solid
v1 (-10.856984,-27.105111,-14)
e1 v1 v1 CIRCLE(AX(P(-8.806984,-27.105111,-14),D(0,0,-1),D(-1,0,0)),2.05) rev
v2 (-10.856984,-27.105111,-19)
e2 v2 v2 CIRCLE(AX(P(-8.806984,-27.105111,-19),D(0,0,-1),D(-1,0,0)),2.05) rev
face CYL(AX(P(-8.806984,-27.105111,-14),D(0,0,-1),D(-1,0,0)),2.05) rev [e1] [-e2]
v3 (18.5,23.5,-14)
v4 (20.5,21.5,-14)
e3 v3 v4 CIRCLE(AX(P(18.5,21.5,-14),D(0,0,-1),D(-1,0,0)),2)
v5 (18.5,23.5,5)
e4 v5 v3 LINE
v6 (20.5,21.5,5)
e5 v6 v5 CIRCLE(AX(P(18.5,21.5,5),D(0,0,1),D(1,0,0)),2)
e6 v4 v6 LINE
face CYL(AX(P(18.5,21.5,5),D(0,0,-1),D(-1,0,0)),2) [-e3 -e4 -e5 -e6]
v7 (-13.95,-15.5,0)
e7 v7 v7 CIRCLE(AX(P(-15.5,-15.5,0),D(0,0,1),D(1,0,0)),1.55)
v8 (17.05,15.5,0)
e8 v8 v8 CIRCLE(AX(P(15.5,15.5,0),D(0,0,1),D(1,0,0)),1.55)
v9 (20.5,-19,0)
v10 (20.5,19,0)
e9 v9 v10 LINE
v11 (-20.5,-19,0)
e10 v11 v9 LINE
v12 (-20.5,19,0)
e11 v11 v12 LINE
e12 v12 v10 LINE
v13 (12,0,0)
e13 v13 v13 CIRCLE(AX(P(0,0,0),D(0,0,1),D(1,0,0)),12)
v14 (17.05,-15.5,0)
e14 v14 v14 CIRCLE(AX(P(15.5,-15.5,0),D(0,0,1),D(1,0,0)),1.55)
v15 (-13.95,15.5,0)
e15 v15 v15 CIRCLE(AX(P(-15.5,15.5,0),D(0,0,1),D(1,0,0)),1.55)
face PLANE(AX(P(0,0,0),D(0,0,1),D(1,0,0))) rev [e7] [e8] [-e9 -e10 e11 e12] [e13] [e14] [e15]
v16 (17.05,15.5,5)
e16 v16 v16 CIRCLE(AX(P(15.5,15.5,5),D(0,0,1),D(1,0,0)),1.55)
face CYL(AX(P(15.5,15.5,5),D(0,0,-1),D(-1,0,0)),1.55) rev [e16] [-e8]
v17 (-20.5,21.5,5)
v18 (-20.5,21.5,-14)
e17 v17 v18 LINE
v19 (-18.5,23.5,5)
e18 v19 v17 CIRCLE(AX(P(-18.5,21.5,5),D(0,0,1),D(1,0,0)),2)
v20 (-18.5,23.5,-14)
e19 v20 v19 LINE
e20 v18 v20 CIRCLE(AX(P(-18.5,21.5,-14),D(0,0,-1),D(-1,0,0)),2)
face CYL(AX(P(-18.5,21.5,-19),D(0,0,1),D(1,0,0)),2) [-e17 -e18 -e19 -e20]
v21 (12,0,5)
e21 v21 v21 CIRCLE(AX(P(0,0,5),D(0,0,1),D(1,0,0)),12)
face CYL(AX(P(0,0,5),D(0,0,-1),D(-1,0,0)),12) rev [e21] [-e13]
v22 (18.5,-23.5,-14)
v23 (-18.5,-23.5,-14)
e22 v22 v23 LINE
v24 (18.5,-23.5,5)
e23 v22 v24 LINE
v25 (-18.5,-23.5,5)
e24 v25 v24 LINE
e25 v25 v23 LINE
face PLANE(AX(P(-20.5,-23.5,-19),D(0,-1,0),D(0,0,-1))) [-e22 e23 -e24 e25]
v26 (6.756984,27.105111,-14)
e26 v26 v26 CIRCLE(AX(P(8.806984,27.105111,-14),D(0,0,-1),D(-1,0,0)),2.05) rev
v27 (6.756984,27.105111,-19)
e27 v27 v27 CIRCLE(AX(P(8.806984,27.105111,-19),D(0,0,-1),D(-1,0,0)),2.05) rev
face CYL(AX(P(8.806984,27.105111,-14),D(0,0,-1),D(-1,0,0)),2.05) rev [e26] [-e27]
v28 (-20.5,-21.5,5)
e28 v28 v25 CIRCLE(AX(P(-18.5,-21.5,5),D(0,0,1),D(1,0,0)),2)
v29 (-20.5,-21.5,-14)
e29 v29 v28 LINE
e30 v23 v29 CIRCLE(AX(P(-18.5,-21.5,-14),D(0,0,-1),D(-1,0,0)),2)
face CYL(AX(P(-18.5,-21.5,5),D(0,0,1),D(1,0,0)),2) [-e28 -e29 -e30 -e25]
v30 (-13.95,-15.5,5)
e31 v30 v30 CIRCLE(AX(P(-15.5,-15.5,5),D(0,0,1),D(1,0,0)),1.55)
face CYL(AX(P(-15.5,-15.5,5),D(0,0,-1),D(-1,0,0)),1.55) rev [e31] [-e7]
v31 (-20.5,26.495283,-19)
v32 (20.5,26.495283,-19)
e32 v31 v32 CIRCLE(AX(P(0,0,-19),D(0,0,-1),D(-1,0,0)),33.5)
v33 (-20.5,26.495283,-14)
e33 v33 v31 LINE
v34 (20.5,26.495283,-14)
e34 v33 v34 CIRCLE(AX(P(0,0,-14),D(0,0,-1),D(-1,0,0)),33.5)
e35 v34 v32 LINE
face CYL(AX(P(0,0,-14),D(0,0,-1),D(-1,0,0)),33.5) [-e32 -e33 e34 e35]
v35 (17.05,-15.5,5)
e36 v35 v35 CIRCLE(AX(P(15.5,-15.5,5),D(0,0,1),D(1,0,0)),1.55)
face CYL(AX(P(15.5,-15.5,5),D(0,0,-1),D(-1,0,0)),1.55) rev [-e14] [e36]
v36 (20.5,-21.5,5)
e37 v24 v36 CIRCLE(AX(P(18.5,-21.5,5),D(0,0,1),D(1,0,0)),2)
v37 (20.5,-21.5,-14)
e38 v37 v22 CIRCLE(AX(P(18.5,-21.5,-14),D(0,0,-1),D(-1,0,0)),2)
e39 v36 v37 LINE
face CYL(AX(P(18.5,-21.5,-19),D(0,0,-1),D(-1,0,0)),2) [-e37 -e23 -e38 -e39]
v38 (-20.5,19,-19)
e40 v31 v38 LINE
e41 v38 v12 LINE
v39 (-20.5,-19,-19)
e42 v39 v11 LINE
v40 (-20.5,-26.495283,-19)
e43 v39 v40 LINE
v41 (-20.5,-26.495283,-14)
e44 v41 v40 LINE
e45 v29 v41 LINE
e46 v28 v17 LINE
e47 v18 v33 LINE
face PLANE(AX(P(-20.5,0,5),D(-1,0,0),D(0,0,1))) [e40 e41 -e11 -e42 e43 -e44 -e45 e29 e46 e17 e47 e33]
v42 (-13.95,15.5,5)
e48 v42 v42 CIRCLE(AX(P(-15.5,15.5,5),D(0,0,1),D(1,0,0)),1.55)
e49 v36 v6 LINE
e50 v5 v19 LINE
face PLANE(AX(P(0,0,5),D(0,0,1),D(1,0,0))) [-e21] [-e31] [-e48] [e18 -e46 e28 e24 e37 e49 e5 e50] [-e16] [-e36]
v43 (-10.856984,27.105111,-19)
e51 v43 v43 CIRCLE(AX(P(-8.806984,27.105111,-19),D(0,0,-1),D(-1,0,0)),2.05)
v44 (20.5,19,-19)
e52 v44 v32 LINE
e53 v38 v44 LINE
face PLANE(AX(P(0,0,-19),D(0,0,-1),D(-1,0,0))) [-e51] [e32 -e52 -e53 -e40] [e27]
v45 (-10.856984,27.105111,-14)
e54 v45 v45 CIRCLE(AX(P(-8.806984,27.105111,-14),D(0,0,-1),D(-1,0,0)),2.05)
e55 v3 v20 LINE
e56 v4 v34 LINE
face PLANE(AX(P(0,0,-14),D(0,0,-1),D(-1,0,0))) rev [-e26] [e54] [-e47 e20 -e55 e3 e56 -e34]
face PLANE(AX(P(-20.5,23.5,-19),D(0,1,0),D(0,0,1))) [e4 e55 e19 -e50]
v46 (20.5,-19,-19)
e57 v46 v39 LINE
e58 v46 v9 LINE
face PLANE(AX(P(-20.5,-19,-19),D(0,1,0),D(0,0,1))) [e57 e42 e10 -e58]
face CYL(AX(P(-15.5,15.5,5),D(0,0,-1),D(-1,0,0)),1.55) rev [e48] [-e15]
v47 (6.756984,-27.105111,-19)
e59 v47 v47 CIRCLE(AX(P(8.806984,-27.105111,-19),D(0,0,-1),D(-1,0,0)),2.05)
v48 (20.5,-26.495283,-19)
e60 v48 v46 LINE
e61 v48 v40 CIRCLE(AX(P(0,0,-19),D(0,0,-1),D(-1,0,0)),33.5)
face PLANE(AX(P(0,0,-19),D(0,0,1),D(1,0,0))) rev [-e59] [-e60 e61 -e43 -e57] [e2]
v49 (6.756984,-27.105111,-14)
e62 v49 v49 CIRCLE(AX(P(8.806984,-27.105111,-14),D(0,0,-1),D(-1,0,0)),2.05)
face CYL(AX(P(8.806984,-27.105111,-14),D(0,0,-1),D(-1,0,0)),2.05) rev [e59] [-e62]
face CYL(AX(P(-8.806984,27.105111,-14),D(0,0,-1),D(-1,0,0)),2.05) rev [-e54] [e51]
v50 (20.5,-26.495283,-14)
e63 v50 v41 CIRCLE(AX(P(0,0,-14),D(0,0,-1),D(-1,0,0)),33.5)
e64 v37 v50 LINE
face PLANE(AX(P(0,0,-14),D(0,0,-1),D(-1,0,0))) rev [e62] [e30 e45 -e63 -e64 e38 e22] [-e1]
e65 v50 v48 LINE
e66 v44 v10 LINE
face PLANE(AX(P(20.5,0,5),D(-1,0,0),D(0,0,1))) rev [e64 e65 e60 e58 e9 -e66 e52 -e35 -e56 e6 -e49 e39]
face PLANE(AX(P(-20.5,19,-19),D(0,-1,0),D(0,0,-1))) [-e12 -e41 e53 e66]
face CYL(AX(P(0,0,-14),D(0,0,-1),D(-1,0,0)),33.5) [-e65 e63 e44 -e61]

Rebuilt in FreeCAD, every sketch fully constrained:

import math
import FreeCAD as App
import Part
import Sketcher
from FreeCAD import Vector
Q = App.Units.Quantity


def edges_at(feature, points):
    """Names of the edges that pass closest to the given points."""
    edges = feature.Shape.Edges
    near = lambda p: min(range(len(edges)), key=lambda i: edges[i].distToShape(Part.Vertex(*p))[0])
    return sorted({f"Edge{near(p) + 1}" for p in points})


def add_polygon(sketch, points):
    """Adds a closed chain of lines whose ends are joined by coincident constraints."""
    first, n = sketch.GeometryCount, len(points)
    for a, b in zip(points, points[1:] + points[:1]):
        sketch.addGeometry(Part.LineSegment(App.Vector(*a, 0), App.Vector(*b, 0)), False)
    for i in range(n):
        sketch.addConstraint(Sketcher.Constraint("Coincident", first + i, 2, first + (i + 1) % n, 1))

doc = App.newDocument("Part")
body = doc.addObject("PartDesign::Body", "Body")

sketch1 = body.newObject("Sketcher::SketchObject", "Sketch")
sketch1.AttachmentSupport = (doc.getObject("XY_Plane"), [""])
sketch1.MapMode = "FlatFace"
add_polygon(sketch1, [(-20.5, 19), (-20.5, -19), (20.5, -19), (20.5, 19)])
sketch1.addGeometry(Part.Circle(Vector(-15.5, -15.5, 0), Vector(0, 0, 1), 1.55), False)
sketch1.addGeometry(Part.Circle(Vector(15.5, -15.5, 0), Vector(0, 0, 1), 1.55), False)
sketch1.addGeometry(Part.Circle(Vector(-15.5, 15.5, 0), Vector(0, 0, 1), 1.55), False)
sketch1.addGeometry(Part.Circle(Vector(0, 0, 0), Vector(0, 0, 1), 12), False)
sketch1.addGeometry(Part.Circle(Vector(15.5, 15.5, 0), Vector(0, 0, 1), 1.55), False)
sketch1.addConstraint([
    Sketcher.Constraint("Vertical", 0),
    Sketcher.Constraint("Horizontal", 1),
    Sketcher.Constraint("Vertical", 2),
    Sketcher.Constraint("Horizontal", 3),
    Sketcher.Constraint("Coincident", 7, 3, -1, 1),
    Sketcher.Constraint("Equal", 4, 5),
    Sketcher.Constraint("Equal", 5, 6),
    Sketcher.Constraint("Equal", 6, 8),
    Sketcher.Constraint("Symmetric", 5, 3, 6, 3, -1, 1),
    Sketcher.Constraint("Symmetric", 4, 3, 8, 3, -1, 1),
    Sketcher.Constraint("Symmetric", 0, 2, 2, 2, -1, 1),
    Sketcher.Constraint("Symmetric", 4, 3, 5, 3, -2),
    Sketcher.Constraint("Diameter", 7, Q("24 mm")),
    Sketcher.Constraint("Diameter", 4, Q("3.1 mm")),
    Sketcher.Constraint("DistanceX", 1, 1, 1, 2, Q("41 mm")),
    Sketcher.Constraint("DistanceY", 0, 2, 0, 1, Q("38 mm")),
    Sketcher.Constraint("DistanceX", 4, 3, 5, 3, Q("31 mm")),
    Sketcher.Constraint("DistanceY", 4, 3, 6, 3, Q("31 mm")),
])
pad1 = body.newObject("PartDesign::Pad", "Pad")
pad1.Profile = sketch1
pad1.Length = 5

sketch2 = body.newObject("Sketcher::SketchObject", "Sketch001")
sketch2.AttachmentSupport = (doc.getObject("XY_Plane"), [""])
sketch2.MapMode = "FlatFace"
sketch2.AttachmentOffset = App.Placement(Vector(0, 0, 5), App.Rotation())
add_polygon(sketch2, [(-20.5, 23.5), (-20.5, 19), (20.5, 19), (20.5, 23.5)])
add_polygon(sketch2, [(-20.5, -19), (-20.5, -23.5), (20.5, -23.5), (20.5, -19)])
sketch2.addConstraint([
    Sketcher.Constraint("Vertical", 0),
    Sketcher.Constraint("Horizontal", 1),
    Sketcher.Constraint("Vertical", 2),
    Sketcher.Constraint("Horizontal", 3),
    Sketcher.Constraint("Vertical", 4),
    Sketcher.Constraint("Horizontal", 5),
    Sketcher.Constraint("Vertical", 6),
    Sketcher.Constraint("Horizontal", 7),
    Sketcher.Constraint("Symmetric", 2, 2, 4, 2, -1, 1),
    Sketcher.Constraint("Symmetric", 0, 2, 6, 2, -1, 1),
    Sketcher.Constraint("Vertical", 3, 2, 4, 2),
    Sketcher.Constraint("DistanceX", 1, 1, 1, 2, Q("41 mm")),
    Sketcher.Constraint("DistanceY", 0, 2, 0, 1, Q("4.5 mm")),
    Sketcher.Constraint("DistanceY", -1, 1, 0, 2, Q("19 mm")),
])
pad2 = body.newObject("PartDesign::Pad", "Pad001")
pad2.Profile = sketch2
pad2.Length = 24
pad2.Reversed = True

sketch3 = body.newObject("Sketcher::SketchObject", "Sketch002")
sketch3.AttachmentSupport = (doc.getObject("XY_Plane"), [""])
sketch3.MapMode = "FlatFace"
sketch3.AttachmentOffset = App.Placement(Vector(0, 0, -19), App.Rotation())
sketch3.addGeometry([
    Part.LineSegment(Vector(20.5, 26.495283, 0), Vector(20.5, 23.5, 0)),
    Part.LineSegment(Vector(20.5, 23.5, 0), Vector(-20.5, 23.5, 0)),
    Part.LineSegment(Vector(-20.5, 23.5, 0), Vector(-20.5, 26.495283, 0)),
    Part.ArcOfCircle(Part.Circle(Vector(0, 0, 0), Vector(0, 0, 1), 33.5), math.radians(90), math.radians(127.729932)),
    Part.ArcOfCircle(Part.Circle(Vector(0, 0, 0), Vector(0, 0, 1), 33.5), math.radians(52.270068), math.radians(90)),
    Part.Circle(Vector(8.806984, 27.105111, 0), Vector(0, 0, 1), 2.05),
    Part.Circle(Vector(-8.806984, 27.105111, 0), Vector(0, 0, 1), 2.05),
    Part.LineSegment(Vector(20.5, -23.5, 0), Vector(20.5, -26.495283, 0)),
    Part.ArcOfCircle(Part.Circle(Vector(0, 0, 0), Vector(0, 0, 1), 33.5), math.radians(-90), math.radians(-52.270068)),
    Part.ArcOfCircle(Part.Circle(Vector(0, 0, 0), Vector(0, 0, 1), 33.5), math.radians(-127.729932), math.radians(-90)),
    Part.LineSegment(Vector(-20.5, -26.495283, 0), Vector(-20.5, -23.5, 0)),
    Part.LineSegment(Vector(-20.5, -23.5, 0), Vector(20.5, -23.5, 0)),
    Part.Circle(Vector(8.806984, -27.105111, 0), Vector(0, 0, 1), 2.05),
    Part.Circle(Vector(-8.806984, -27.105111, 0), Vector(0, 0, 1), 2.05),
], False)
sketch3.addConstraint([
    Sketcher.Constraint("Coincident", 0, 2, 1, 1),
    Sketcher.Constraint("Coincident", 1, 2, 2, 1),
    Sketcher.Constraint("Coincident", 2, 2, 3, 2),
    Sketcher.Constraint("Tangent", 3, 1, 4, 2),
    Sketcher.Constraint("Coincident", 4, 1, 0, 1),
    Sketcher.Constraint("Coincident", 7, 2, 8, 2),
    Sketcher.Constraint("Tangent", 8, 1, 9, 2),
    Sketcher.Constraint("Coincident", 9, 1, 10, 1),
    Sketcher.Constraint("Coincident", 10, 2, 11, 1),
    Sketcher.Constraint("Coincident", 11, 2, 7, 1),
    Sketcher.Constraint("Vertical", 0),
    Sketcher.Constraint("Horizontal", 1),
    Sketcher.Constraint("Vertical", 2),
    Sketcher.Constraint("Vertical", 7),
    Sketcher.Constraint("Vertical", 10),
    Sketcher.Constraint("Horizontal", 11),
    Sketcher.Constraint("Coincident", 3, 3, -1, 1),
    Sketcher.Constraint("Coincident", 8, 3, -1, 1),
    Sketcher.Constraint("Equal", 3, 4),
    Sketcher.Constraint("Equal", 5, 6),
    Sketcher.Constraint("Equal", 4, 8),
    Sketcher.Constraint("Equal", 8, 9),
    Sketcher.Constraint("Equal", 6, 12),
    Sketcher.Constraint("Equal", 12, 13),
    Sketcher.Constraint("Symmetric", 6, 3, 12, 3, -1, 1),
    Sketcher.Constraint("Symmetric", 5, 3, 13, 3, -1, 1),
    Sketcher.Constraint("Symmetric", 0, 2, 10, 2, -1, 1),
    Sketcher.Constraint("Symmetric", 5, 3, 6, 3, -2),
    Sketcher.Constraint("PointOnObject", 3, 1, -2),
    Sketcher.Constraint("PointOnObject", 8, 1, -2),
    Sketcher.Constraint("Horizontal", 2, 2, 4, 1),
    Sketcher.Constraint("Horizontal", 7, 2, 9, 1),
    Sketcher.Constraint("Diameter", 5, Q("4.1 mm")),
    Sketcher.Constraint("Radius", 3, Q("33.5 mm")),
    Sketcher.Constraint("DistanceX", 1, 2, 1, 1, Q("41 mm")),
    Sketcher.Constraint("DistanceY", 0, 2, 3, 1, Q("10 mm")),
    Sketcher.Constraint("DistanceY", -1, 1, 5, 3, Q("27.105111 mm")),
    Sketcher.Constraint("DistanceX", 6, 3, 5, 3, Q("17.613969 mm")),
])
pad3 = body.newObject("PartDesign::Pad", "Pad002")
pad3.Profile = sketch3
pad3.Length = 5
doc.recompute()

fillet = body.newObject("PartDesign::Fillet", "Fillet")
fillet.Base = (pad3, edges_at(pad3, [
    (20.5, 23.5, -4.5),
    (-20.5, 23.5, -4.5),
    (-20.5, -23.5, -4.5),
    (20.5, -23.5, -4.5),
]))
fillet.Radius = 2

doc.recompute()
